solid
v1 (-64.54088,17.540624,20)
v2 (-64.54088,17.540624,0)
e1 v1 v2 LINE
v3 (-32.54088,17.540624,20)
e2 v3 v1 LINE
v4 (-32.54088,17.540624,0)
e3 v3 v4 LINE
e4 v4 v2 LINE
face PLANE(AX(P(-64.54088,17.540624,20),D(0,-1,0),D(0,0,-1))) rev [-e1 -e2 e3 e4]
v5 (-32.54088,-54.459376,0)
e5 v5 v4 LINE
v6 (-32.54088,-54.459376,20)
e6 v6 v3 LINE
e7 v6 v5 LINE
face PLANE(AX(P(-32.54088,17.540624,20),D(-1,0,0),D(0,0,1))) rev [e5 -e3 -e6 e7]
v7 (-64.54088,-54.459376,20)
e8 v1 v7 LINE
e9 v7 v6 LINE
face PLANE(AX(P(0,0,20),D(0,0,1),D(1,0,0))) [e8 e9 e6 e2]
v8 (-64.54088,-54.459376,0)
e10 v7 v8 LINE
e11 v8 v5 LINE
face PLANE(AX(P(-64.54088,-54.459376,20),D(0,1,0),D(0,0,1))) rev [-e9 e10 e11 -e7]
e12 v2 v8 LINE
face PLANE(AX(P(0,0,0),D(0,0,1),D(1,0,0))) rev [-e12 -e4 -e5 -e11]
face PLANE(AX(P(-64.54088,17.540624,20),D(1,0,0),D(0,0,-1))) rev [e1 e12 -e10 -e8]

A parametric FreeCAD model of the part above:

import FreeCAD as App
import Part
import Sketcher

V = App.Vector

doc = App.newDocument("Part")
params = doc.addObject("Spreadsheet::Sheet", "Params")
for row, (alias, value) in enumerate([
    ("sketch1_width", "32 mm"),
    ("sketch1_height", "72 mm"),
    ("pad1_length", "20 mm"),
], start=1):
    params.set(f"A{row}", alias)
    params.set(f"B{row}", "=" + value)
    params.setAlias(f"B{row}", alias)

body = doc.addObject("PartDesign::Body", "Body")

sketch1 = body.newObject("Sketcher::SketchObject", "Sketch")
sketch1.AttachmentSupport = (doc.getObject("XY_Plane"), [""])
sketch1.MapMode = "FlatFace"
sketch1.addGeometry([
    Part.LineSegment(V(-65, 18, 0), V(-65, -54, 0)),
    Part.LineSegment(V(-65, -54, 0), V(-33, -54, 0)),
    Part.LineSegment(V(-33, -54, 0), V(-33, 18, 0)),
    Part.LineSegment(V(-33, 18, 0), V(-65, 18, 0)),
], False)
sketch1.addConstraint([
    Sketcher.Constraint("Coincident", 0, 2, 1, 1),
    Sketcher.Constraint("Coincident", 1, 2, 2, 1),
    Sketcher.Constraint("Coincident", 2, 2, 3, 1),
    Sketcher.Constraint("Coincident", 3, 2, 0, 1),
    Sketcher.Constraint("Vertical", 0),
    Sketcher.Constraint("Horizontal", 1),
    Sketcher.Constraint("Vertical", 2),
    Sketcher.Constraint("Horizontal", 3),
    Sketcher.Constraint("DistanceX", 1, 1, 1, 2, 32.0),
    Sketcher.Constraint("DistanceY", 0, 2, 0, 1, 72.0),
    Sketcher.Constraint("DistanceX", 0, 2, -1, 1, 64.54088),
    Sketcher.Constraint("DistanceY", 0, 2, -1, 1, 54.459376),
])
sketch1.setExpression("Constraints[8]", "Params.sketch1_width")
sketch1.setExpression("Constraints[9]", "Params.sketch1_height")
pad1 = body.newObject("PartDesign::Pad", "Pad")
pad1.Profile = sketch1
pad1.setExpression("Length", "Params.pad1_length")

doc.recompute()
